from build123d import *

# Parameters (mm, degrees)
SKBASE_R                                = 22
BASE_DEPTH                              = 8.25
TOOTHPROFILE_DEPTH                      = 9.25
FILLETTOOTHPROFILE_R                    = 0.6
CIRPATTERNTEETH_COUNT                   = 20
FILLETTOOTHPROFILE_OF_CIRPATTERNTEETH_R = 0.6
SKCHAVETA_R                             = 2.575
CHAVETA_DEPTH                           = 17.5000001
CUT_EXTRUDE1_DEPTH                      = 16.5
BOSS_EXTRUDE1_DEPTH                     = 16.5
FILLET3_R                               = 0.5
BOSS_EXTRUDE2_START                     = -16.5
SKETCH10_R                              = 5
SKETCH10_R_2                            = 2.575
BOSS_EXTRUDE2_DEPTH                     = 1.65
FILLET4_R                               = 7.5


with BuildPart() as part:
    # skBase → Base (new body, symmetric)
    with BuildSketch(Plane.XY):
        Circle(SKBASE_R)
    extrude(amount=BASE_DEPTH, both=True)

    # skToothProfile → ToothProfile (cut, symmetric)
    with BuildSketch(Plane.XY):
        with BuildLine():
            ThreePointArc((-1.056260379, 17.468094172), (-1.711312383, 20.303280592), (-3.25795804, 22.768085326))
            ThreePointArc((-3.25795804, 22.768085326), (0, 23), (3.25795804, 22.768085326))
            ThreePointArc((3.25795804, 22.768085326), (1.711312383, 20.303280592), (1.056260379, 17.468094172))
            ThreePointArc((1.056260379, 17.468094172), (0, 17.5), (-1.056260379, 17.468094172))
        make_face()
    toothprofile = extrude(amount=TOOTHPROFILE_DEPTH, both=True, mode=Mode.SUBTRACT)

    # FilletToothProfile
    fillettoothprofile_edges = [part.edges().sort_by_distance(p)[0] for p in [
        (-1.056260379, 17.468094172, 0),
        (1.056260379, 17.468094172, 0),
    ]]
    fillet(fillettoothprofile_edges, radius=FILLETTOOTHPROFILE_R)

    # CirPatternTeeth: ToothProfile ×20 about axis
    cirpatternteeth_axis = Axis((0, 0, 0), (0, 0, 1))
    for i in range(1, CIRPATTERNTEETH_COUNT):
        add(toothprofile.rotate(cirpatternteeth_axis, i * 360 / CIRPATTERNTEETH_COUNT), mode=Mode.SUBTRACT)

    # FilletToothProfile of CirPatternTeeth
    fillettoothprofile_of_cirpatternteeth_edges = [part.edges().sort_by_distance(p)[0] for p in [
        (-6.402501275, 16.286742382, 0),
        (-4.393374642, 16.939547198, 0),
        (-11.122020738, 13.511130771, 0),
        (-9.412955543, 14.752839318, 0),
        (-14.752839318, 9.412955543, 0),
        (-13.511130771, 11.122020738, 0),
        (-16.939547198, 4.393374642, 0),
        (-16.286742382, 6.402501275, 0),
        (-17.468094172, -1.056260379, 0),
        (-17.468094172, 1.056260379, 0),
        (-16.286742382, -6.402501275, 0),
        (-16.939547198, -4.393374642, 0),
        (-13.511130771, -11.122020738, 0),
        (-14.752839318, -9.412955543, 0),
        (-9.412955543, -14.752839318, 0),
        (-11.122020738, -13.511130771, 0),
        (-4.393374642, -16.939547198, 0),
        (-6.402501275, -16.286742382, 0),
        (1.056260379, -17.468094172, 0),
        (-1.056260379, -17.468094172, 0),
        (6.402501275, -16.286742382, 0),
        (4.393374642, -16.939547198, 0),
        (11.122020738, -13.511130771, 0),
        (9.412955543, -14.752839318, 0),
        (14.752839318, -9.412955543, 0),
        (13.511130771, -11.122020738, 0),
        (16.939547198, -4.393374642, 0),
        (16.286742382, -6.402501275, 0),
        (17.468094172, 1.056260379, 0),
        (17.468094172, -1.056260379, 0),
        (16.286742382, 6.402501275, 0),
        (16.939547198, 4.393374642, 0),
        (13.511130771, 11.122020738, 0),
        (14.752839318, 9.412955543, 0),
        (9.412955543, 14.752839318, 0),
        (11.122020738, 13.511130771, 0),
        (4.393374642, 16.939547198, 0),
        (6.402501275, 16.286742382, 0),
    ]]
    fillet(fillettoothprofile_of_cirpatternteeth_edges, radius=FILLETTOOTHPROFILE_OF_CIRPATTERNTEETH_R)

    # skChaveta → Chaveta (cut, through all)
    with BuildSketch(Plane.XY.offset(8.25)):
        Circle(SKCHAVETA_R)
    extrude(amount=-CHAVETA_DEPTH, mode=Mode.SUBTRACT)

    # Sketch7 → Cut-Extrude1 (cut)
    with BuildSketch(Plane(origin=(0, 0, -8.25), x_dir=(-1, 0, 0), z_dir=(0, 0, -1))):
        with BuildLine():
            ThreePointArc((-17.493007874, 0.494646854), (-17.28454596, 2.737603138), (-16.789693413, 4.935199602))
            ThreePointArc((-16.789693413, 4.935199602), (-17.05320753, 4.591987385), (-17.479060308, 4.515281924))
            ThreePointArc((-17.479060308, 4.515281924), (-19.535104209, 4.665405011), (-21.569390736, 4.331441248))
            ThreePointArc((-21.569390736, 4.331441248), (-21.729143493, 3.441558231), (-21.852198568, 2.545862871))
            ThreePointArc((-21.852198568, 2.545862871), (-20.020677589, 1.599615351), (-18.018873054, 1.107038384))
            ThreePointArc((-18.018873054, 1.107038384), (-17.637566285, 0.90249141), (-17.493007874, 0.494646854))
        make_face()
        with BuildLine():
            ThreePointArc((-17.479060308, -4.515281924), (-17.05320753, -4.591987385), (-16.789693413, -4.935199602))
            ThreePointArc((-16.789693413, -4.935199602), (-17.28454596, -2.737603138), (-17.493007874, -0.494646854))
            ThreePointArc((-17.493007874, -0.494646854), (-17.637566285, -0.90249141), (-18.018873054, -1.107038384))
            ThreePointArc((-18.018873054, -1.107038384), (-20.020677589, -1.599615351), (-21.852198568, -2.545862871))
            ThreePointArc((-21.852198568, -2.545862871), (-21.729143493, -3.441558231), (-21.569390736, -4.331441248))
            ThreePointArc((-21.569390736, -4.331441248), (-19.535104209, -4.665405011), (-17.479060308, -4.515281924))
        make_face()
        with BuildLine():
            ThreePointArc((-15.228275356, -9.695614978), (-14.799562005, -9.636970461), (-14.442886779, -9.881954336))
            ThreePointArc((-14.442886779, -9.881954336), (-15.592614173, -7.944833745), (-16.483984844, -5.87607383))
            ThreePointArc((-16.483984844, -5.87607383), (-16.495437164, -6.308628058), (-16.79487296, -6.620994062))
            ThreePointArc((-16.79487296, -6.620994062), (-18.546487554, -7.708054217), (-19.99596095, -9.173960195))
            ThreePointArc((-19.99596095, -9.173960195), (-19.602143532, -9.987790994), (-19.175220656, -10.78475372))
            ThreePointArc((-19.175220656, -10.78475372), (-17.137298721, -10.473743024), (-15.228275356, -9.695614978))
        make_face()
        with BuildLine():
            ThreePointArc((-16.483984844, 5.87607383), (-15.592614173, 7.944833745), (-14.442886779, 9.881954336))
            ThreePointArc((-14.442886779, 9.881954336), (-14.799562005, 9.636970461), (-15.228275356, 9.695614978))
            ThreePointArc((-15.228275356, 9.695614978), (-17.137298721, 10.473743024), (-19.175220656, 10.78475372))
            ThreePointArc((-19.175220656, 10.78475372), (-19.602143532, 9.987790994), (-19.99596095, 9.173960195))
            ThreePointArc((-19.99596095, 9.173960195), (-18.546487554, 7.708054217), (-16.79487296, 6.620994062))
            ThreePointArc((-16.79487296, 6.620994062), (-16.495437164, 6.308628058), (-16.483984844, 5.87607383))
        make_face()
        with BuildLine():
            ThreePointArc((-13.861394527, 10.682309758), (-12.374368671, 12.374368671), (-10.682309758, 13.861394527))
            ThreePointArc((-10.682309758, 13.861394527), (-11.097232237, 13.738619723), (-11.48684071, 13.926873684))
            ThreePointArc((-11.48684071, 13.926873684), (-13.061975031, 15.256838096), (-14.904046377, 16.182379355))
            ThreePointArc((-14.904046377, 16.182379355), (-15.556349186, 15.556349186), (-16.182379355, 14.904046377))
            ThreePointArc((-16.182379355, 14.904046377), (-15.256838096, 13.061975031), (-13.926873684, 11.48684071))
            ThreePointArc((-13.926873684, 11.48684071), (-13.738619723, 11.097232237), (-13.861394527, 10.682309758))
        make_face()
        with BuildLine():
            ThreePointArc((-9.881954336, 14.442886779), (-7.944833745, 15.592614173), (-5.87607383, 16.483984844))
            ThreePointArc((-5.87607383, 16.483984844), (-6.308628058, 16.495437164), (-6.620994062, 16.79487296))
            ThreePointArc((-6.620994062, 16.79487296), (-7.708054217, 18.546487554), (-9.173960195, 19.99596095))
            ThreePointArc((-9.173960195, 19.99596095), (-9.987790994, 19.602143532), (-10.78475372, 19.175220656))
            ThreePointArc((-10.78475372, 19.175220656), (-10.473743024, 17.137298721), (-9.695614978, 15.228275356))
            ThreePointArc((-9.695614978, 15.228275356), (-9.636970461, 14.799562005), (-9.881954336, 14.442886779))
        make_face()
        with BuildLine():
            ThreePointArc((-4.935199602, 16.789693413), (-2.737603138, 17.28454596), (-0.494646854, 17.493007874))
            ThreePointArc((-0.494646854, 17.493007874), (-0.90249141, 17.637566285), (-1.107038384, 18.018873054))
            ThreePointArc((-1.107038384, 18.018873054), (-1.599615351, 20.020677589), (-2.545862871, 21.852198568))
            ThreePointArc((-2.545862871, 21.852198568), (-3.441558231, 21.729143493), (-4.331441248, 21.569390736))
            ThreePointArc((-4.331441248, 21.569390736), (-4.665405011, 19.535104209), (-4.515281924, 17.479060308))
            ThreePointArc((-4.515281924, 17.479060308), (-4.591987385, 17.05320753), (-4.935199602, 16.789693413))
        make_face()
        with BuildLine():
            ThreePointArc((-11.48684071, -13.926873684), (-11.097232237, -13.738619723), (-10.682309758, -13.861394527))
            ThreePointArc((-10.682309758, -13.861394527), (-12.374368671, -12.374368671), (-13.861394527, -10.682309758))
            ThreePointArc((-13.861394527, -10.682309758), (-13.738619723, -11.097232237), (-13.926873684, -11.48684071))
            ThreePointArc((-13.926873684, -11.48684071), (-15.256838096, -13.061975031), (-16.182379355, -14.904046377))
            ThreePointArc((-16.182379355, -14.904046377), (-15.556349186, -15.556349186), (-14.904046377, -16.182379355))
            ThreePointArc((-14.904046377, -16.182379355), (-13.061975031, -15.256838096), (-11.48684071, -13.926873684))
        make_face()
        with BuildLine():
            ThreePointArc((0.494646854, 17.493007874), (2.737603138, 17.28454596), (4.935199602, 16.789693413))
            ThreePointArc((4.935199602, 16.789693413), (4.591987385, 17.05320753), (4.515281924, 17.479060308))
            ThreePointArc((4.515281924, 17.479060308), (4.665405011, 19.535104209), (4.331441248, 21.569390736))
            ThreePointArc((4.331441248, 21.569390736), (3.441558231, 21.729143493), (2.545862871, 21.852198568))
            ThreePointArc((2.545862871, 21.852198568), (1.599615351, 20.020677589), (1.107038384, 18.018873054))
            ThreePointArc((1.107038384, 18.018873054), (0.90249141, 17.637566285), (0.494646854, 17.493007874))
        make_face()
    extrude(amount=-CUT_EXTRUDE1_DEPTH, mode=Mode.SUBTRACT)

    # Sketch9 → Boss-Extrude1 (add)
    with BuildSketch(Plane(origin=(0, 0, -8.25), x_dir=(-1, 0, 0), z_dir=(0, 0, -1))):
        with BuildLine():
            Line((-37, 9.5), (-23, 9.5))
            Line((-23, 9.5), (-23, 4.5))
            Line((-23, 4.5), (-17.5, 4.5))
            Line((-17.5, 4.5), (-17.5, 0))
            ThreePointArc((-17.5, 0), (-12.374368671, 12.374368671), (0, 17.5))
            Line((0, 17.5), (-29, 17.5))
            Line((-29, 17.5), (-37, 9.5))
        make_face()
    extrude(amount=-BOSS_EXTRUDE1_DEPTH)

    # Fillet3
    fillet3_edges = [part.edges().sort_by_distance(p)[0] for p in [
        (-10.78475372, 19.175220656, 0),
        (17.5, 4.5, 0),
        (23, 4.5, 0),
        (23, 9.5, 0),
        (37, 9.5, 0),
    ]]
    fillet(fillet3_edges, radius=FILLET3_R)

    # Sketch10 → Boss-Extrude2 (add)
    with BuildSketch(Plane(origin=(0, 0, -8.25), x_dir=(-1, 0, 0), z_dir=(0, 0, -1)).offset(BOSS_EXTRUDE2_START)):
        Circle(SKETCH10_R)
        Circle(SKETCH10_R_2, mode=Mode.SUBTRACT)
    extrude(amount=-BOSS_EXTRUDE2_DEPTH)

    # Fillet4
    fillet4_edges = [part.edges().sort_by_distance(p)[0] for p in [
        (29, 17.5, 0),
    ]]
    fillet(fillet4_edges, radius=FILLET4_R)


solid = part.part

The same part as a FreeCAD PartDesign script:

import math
import FreeCAD as App
import Part
import Sketcher
from FreeCAD import Vector
Q = App.Units.Quantity


def edges_at(feature, points):
    """Names of the edges that pass closest to the given points."""
    edges = feature.Shape.Edges
    near = lambda p: min(range(len(edges)), key=lambda i: edges[i].distToShape(Part.Vertex(*p))[0])
    return sorted({f"Edge{near(p) + 1}" for p in points})

doc = App.newDocument("Part")
body = doc.addObject("PartDesign::Body", "Body")

# Sketch on XY plane
sketch1 = body.newObject("Sketcher::SketchObject", "Sketch")
sketch1.AttachmentSupport = (doc.getObject("XY_Plane"), [""])
sketch1.MapMode = "FlatFace"
sketch1.addGeometry(Part.Circle(Vector(0, 0, 0), Vector(0, 0, 1), 22), False)
sketch1.addConstraint([
    Sketcher.Constraint("Coincident", 0, 3, -1, 1),
    Sketcher.Constraint("Diameter", 0, 44.0),
])
pad1 = body.newObject("PartDesign::Pad", "Pad")
pad1.Profile = sketch1
pad1.Length = 16.5
pad1.Midplane = True

# Sketch on XY plane
sketch2 = body.newObject("Sketcher::SketchObject", "Sketch001")
sketch2.AttachmentSupport = (doc.getObject("XY_Plane"), [""])
sketch2.MapMode = "FlatFace"
sketch2.addGeometry([
    Part.ArcOfCircle(Part.Circle(Vector(-9.81053, 16.938741, 0), Vector(0, 0, 1), 8.77026), math.radians(3.460347), math.radians(41.65715)),
    Part.ArcOfCircle(Part.Circle(Vector(0, 0, 0), Vector(0, 0, 1), 17.5), math.radians(86.539653), math.radians(93.460347)),
    Part.ArcOfCircle(Part.Circle(Vector(9.81053, 16.938741, 0), Vector(0, 0, 1), 8.77026), math.radians(138.34285), math.radians(176.539653)),
    Part.ArcOfCircle(Part.Circle(Vector(0, 0, 0), Vector(0, 0, 1), 23), math.radians(81.856644), math.radians(98.143356)),
], False)
sketch2.addConstraint([
    Sketcher.Constraint("Coincident", 0, 1, 1, 2),
    Sketcher.Constraint("Coincident", 1, 1, 2, 2),
    Sketcher.Constraint("Coincident", 2, 1, 3, 1),
    Sketcher.Constraint("Coincident", 3, 2, 0, 2),
    Sketcher.Constraint("Coincident", 1, 3, -1, 1),
    Sketcher.Constraint("Coincident", 3, 3, -1, 1),
    Sketcher.Constraint("Equal", 0, 2),
    Sketcher.Constraint("Symmetric", 0, 3, 2, 3, -2),
    Sketcher.Constraint("Radius", 3, 23.0),
    Sketcher.Constraint("Radius", 1, 17.5),
    Sketcher.Constraint("Radius", 0, 8.77026),
    Sketcher.Constraint("DistanceX", 0, 3, -1, 1, 9.81053),
    Sketcher.Constraint("DistanceY", -1, 1, 0, 3, 16.938741),
])
pocket1 = body.newObject("PartDesign::Pocket", "Pocket")
pocket1.Profile = sketch2
pocket1.Length = 18.5
pocket1.Midplane = True
doc.recompute()

fillet = body.newObject("PartDesign::Fillet", "Fillet")
fillet.Base = (pocket1, edges_at(pocket1, [(-1.056, 17.468, 0), (1.056, 17.468, 0)]))
fillet.Radius = 0.6
doc.recompute()

polarpattern = body.newObject("PartDesign::PolarPattern", "PolarPattern")
polarpattern.Originals = [pocket1]
polarpattern.Axis = (doc.getObject("Z_Axis"), [""])
polarpattern.Angle = 360
polarpattern.Occurrences = 20
body.Tip = polarpattern
doc.recompute()

fillet2 = body.newObject("PartDesign::Fillet", "Fillet001")
fillet2.Base = (polarpattern, edges_at(polarpattern, [
    (-6.403, 16.287, 0),
    (-4.393, 16.94, 0),
    (-11.122, 13.511, 0),
    (-9.413, 14.753, 0),
    (-14.753, 9.413, 0),
    (-13.511, 11.122, 0),
    (-16.94, 4.393, 0),
    (-16.287, 6.403, 0),
    (-17.468, -1.056, 0),
    (-17.468, 1.056, 0),
    (-16.287, -6.403, 0),
    (-16.94, -4.393, 0),
    (-13.511, -11.122, 0),
    (-14.753, -9.413, 0),
    (-9.413, -14.753, 0),
    (-11.122, -13.511, 0),
    (-4.393, -16.94, 0),
    (-6.403, -16.287, 0),
    (1.056, -17.468, 0),
    (-1.056, -17.468, 0),
    (6.403, -16.287, 0),
    (4.393, -16.94, 0),
    (11.122, -13.511, 0),
    (9.413, -14.753, 0),
    (14.753, -9.413, 0),
    (13.511, -11.122, 0),
    (16.94, -4.393, 0),
    (16.287, -6.403, 0),
    (17.468, 1.056, 0),
    (17.468, -1.056, 0),
    (16.287, 6.403, 0),
    (16.94, 4.393, 0),
    (13.511, 11.122, 0),
    (14.753, 9.413, 0),
    (9.413, 14.753, 0),
    (11.122, 13.511, 0),
    (4.393, 16.94, 0),
    (6.403, 16.287, 0),
]))
fillet2.Radius = 0.6

# Sketch on XY plane
sketch3 = body.newObject("Sketcher::SketchObject", "Sketch002")
sketch3.AttachmentSupport = (doc.getObject("XY_Plane"), [""])
sketch3.MapMode = "FlatFace"
sketch3.AttachmentOffset = App.Placement(Vector(0, 0, 8.25), App.Rotation())
sketch3.addGeometry(Part.Circle(Vector(0, 0, 0), Vector(0, 0, 1), 2.575), False)
sketch3.addConstraint([
    Sketcher.Constraint("Coincident", 0, 3, -1, 1),
    Sketcher.Constraint("Diameter", 0, 5.15),
])
pocket2 = body.newObject("PartDesign::Pocket", "Pocket001")
pocket2.Profile = sketch3
pocket2.Type = "ThroughAll"

# Sketch on XY plane
sketch4 = body.newObject("Sketcher::SketchObject", "Sketch003")
sketch4.AttachmentSupport = (doc.getObject("XY_Plane"), [""])
sketch4.MapMode = "FlatFace"
sketch4.AttachmentOffset = App.Placement(Vector(0, 0, -8.25), App.Rotation())
sketch4.addGeometry([
    Part.ArcOfCircle(Part.Circle(Vector(0, 0, 0), Vector(0, 0, 1), 17.5), math.radians(1.619712), math.radians(16.380288)),  # 0
    Part.ArcOfCircle(Part.Circle(Vector(17.36534, 5.104406, 0), Vector(0, 0, 1), 0.6), math.radians(-163.619712), math.radians(-79.074423)),  # 1
    Part.ArcOfCircle(Part.Circle(Vector(19.141321, -4.09601, 0), Vector(0, 0, 1), 8.77026), math.radians(73.927547), math.radians(100.925577)),  # 2
    Part.ArcOfCircle(Part.Circle(Vector(0, 0, 0), Vector(0, 0, 1), 22), math.radians(6.645215), math.radians(11.354785)),  # 3
    Part.ArcOfCircle(Part.Circle(Vector(16.938741, 9.81053, 0), Vector(0, 0, 1), 8.77026), math.radians(-82.925577), math.radians(-55.927547)),  # 4
    Part.ArcOfCircle(Part.Circle(Vector(18.092768, 0.511606, 0), Vector(0, 0, 1), 0.6), math.radians(97.074423), math.radians(181.619711)),  # 5
    Part.ArcOfCircle(Part.Circle(Vector(17.36534, -5.104406, 0), Vector(0, 0, 1), 0.6), math.radians(79.074423), math.radians(163.619712)),  # 6
    Part.ArcOfCircle(Part.Circle(Vector(0, 0, 0), Vector(0, 0, 1), 17.5), math.radians(-16.380288), math.radians(-1.619712)),  # 7
    Part.ArcOfCircle(Part.Circle(Vector(18.092768, -0.511606, 0), Vector(0, 0, 1), 0.6), math.radians(178.380289), math.radians(262.925577)),  # 8
    Part.ArcOfCircle(Part.Circle(Vector(16.938741, -9.81053, 0), Vector(0, 0, 1), 8.77026), math.radians(55.927547), math.radians(82.925577)),  # 9
    Part.ArcOfCircle(Part.Circle(Vector(0, 0, 0), Vector(0, 0, 1), 22), math.radians(-11.354785), math.radians(-6.645215)),  # 10
    Part.ArcOfCircle(Part.Circle(Vector(19.141321, 4.09601, 0), Vector(0, 0, 1), 8.77026), math.radians(-100.925577), math.radians(-73.927547)),  # 11
    Part.ArcOfCircle(Part.Circle(Vector(14.938071, -10.220764, 0), Vector(0, 0, 1), 0.6), math.radians(61.074423), math.radians(145.619711)),  # 12
    Part.ArcOfCircle(Part.Circle(Vector(0, 0, 0), Vector(0, 0, 1), 17.5), math.radians(-34.380288), math.radians(-19.619712)),  # 13
    Part.ArcOfCircle(Part.Circle(Vector(17.04915, -6.077539, 0), Vector(0, 0, 1), 0.6), math.radians(160.380289), math.radians(244.925577)),  # 14
    Part.ArcOfCircle(Part.Circle(Vector(13.07808, -14.564728, 0), Vector(0, 0, 1), 8.77026), math.radians(37.927547), math.radians(64.925577)),  # 15
    Part.ArcOfCircle(Part.Circle(Vector(0, 0, 0), Vector(0, 0, 1), 22), math.radians(-29.354785), math.radians(-24.645215)),  # 16
    Part.ArcOfCircle(Part.Circle(Vector(19.470215, -2.019456, 0), Vector(0, 0, 1), 8.77026), math.radians(-118.925577), math.radians(-91.927547)),  # 17
    Part.ArcOfCircle(Part.Circle(Vector(0, 0, 0), Vector(0, 0, 1), 17.5), math.radians(19.619712), math.radians(34.380288)),  # 18
    Part.ArcOfCircle(Part.Circle(Vector(14.938071, 10.220764, 0), Vector(0, 0, 1), 0.6), math.radians(-145.619711), math.radians(-61.074423)),  # 19
    Part.ArcOfCircle(Part.Circle(Vector(19.470215, 2.019456, 0), Vector(0, 0, 1), 8.77026), math.radians(91.927547), math.radians(118.925577)),  # 20
    Part.ArcOfCircle(Part.Circle(Vector(0, 0, 0), Vector(0, 0, 1), 22), math.radians(24.645215), math.radians(29.354785)),  # 21
    Part.ArcOfCircle(Part.Circle(Vector(13.07808, 14.564728, 0), Vector(0, 0, 1), 8.77026), math.radians(-64.925577), math.radians(-37.927547)),  # 22
    Part.ArcOfCircle(Part.Circle(Vector(17.04915, 6.077539, 0), Vector(0, 0, 1), 0.6), math.radians(115.074423), math.radians(199.619711)),  # 23
    Part.ArcOfCircle(Part.Circle(Vector(0, 0, 0), Vector(0, 0, 1), 17.5), math.radians(37.619712), math.radians(52.380288)),  # 24
    Part.ArcOfCircle(Part.Circle(Vector(11.04856, 14.336642, 0), Vector(0, 0, 1), 0.6), math.radians(-127.619711), math.radians(-43.074423)),  # 25
    Part.ArcOfCircle(Part.Circle(Vector(17.893228, 7.937244, 0), Vector(0, 0, 1), 8.77026), math.radians(109.927547), math.radians(136.925577)),  # 26
    Part.ArcOfCircle(Part.Circle(Vector(0, 0, 0), Vector(0, 0, 1), 22), math.radians(42.645215), math.radians(47.354785)),  # 27
    Part.ArcOfCircle(Part.Circle(Vector(7.937244, 17.893228, 0), Vector(0, 0, 1), 8.77026), math.radians(-46.925577), math.radians(-19.927547)),  # 28
    Part.ArcOfCircle(Part.Circle(Vector(14.336642, 11.04856, 0), Vector(0, 0, 1), 0.6), math.radians(133.074423), math.radians(217.619711)),  # 29
    Part.ArcOfCircle(Part.Circle(Vector(0, 0, 0), Vector(0, 0, 1), 17.5), math.radians(55.619712), math.radians(70.380288)),  # 30
    Part.ArcOfCircle(Part.Circle(Vector(6.077539, 17.04915, 0), Vector(0, 0, 1), 0.6), math.radians(-109.619711), math.radians(-25.074423)),  # 31
    Part.ArcOfCircle(Part.Circle(Vector(14.564728, 13.07808, 0), Vector(0, 0, 1), 8.77026), math.radians(127.927547), math.radians(154.925577)),  # 32
    Part.ArcOfCircle(Part.Circle(Vector(0, 0, 0), Vector(0, 0, 1), 22), math.radians(60.645215), math.radians(65.354785)),  # 33
    Part.ArcOfCircle(Part.Circle(Vector(2.019456, 19.470215, 0), Vector(0, 0, 1), 8.77026), math.radians(-28.925577), math.radians(-1.927547)),  # 34
    Part.ArcOfCircle(Part.Circle(Vector(10.220764, 14.938071, 0), Vector(0, 0, 1), 0.6), math.radians(151.074423), math.radians(235.619711)),  # 35
    Part.ArcOfCircle(Part.Circle(Vector(0, 0, 0), Vector(0, 0, 1), 17.5), math.radians(73.619712), math.radians(88.380288)),  # 36
    Part.ArcOfCircle(Part.Circle(Vector(0.511606, 18.092768, 0), Vector(0, 0, 1), 0.6), math.radians(-91.619711), math.radians(-7.074423)),  # 37
    Part.ArcOfCircle(Part.Circle(Vector(9.81053, 16.938741, 0), Vector(0, 0, 1), 8.77026), math.radians(145.927547), math.radians(172.925577)),  # 38
    Part.ArcOfCircle(Part.Circle(Vector(0, 0, 0), Vector(0, 0, 1), 22), math.radians(78.645215), math.radians(83.354785)),  # 39
    Part.ArcOfCircle(Part.Circle(Vector(-4.09601, 19.141321, 0), Vector(0, 0, 1), 8.77026), math.radians(-10.925577), math.radians(16.072453)),  # 40
    Part.ArcOfCircle(Part.Circle(Vector(5.104406, 17.36534, 0), Vector(0, 0, 1), 0.6), math.radians(169.074423), math.radians(253.619712)),  # 41
    Part.ArcOfCircle(Part.Circle(Vector(11.04856, -14.336642, 0), Vector(0, 0, 1), 0.6), math.radians(43.074423), math.radians(127.619711)),  # 42
    Part.ArcOfCircle(Part.Circle(Vector(0, 0, 0), Vector(0, 0, 1), 17.5), math.radians(-52.380288), math.radians(-37.619712)),  # 43
    Part.ArcOfCircle(Part.Circle(Vector(14.336642, -11.04856, 0), Vector(0, 0, 1), 0.6), math.radians(142.380289), math.radians(226.925577)),  # 44
    Part.ArcOfCircle(Part.Circle(Vector(7.937244, -17.893228, 0), Vector(0, 0, 1), 8.77026), math.radians(19.927547), math.radians(46.925577)),  # 45
    Part.ArcOfCircle(Part.Circle(Vector(0, 0, 0), Vector(0, 0, 1), 22), math.radians(-47.354785), math.radians(-42.645215)),  # 46
    Part.ArcOfCircle(Part.Circle(Vector(17.893228, -7.937244, 0), Vector(0, 0, 1), 8.77026), math.radians(-136.925577), math.radians(-109.927547)),  # 47
    Part.ArcOfCircle(Part.Circle(Vector(0, 0, 0), Vector(0, 0, 1), 17.5), math.radians(91.619712), math.radians(106.380288)),  # 48
    Part.ArcOfCircle(Part.Circle(Vector(-5.104406, 17.36534, 0), Vector(0, 0, 1), 0.6), math.radians(-73.619712), math.radians(10.925577)),  # 49
    Part.ArcOfCircle(Part.Circle(Vector(4.09601, 19.141321, 0), Vector(0, 0, 1), 8.77026), math.radians(163.927547), math.radians(190.925577)),  # 50
    Part.ArcOfCircle(Part.Circle(Vector(0, 0, 0), Vector(0, 0, 1), 22), math.radians(96.645215), math.radians(101.354785)),  # 51
    Part.ArcOfCircle(Part.Circle(Vector(-9.81053, 16.938741, 0), Vector(0, 0, 1), 8.77026), math.radians(7.074423), math.radians(34.072453)),  # 52
    Part.ArcOfCircle(Part.Circle(Vector(-0.511606, 18.092768, 0), Vector(0, 0, 1), 0.6), math.radians(-172.925577), math.radians(-88.380289)),  # 53
], False)
sketch4.addConstraint([
    Sketcher.Constraint("Tangent", 0, 2, 1, 1),
    Sketcher.Constraint("Tangent", 1, 2, 2, 2),
    Sketcher.Constraint("Coincident", 2, 1, 3, 2),
    Sketcher.Constraint("Coincident", 3, 1, 4, 2),
    Sketcher.Constraint("Tangent", 4, 1, 5, 1),
    Sketcher.Constraint("Tangent", 5, 2, 0, 1),
    Sketcher.Constraint("Tangent", 6, 2, 7, 1),
    Sketcher.Constraint("Tangent", 7, 2, 8, 1),
    Sketcher.Constraint("Tangent", 8, 2, 9, 2),
    Sketcher.Constraint("Coincident", 9, 1, 10, 2),
    Sketcher.Constraint("Coincident", 10, 1, 11, 2),
    Sketcher.Constraint("Tangent", 11, 1, 6, 1),
    Sketcher.Constraint("Tangent", 12, 2, 13, 1),
    Sketcher.Constraint("Tangent", 13, 2, 14, 1),
    Sketcher.Constraint("Tangent", 14, 2, 15, 2),
    Sketcher.Constraint("Coincident", 15, 1, 16, 2),
    Sketcher.Constraint("Coincident", 16, 1, 17, 2),
    Sketcher.Constraint("Tangent", 17, 1, 12, 1),
    Sketcher.Constraint("Tangent", 18, 2, 19, 1),
    Sketcher.Constraint("Tangent", 19, 2, 20, 2),
    Sketcher.Constraint("Coincident", 20, 1, 21, 2),
    Sketcher.Constraint("Coincident", 21, 1, 22, 2),
    Sketcher.Constraint("Tangent", 22, 1, 23, 1),
    Sketcher.Constraint("Tangent", 23, 2, 18, 1),
    Sketcher.Constraint("Tangent", 24, 2, 25, 1),
    Sketcher.Constraint("Tangent", 25, 2, 26, 2),
    Sketcher.Constraint("Coincident", 26, 1, 27, 2),
    Sketcher.Constraint("Coincident", 27, 1, 28, 2),
    Sketcher.Constraint("Tangent", 28, 1, 29, 1),
    Sketcher.Constraint("Tangent", 29, 2, 24, 1),
    Sketcher.Constraint("Tangent", 30, 2, 31, 1),
    Sketcher.Constraint("Tangent", 31, 2, 32, 2),
    Sketcher.Constraint("Coincident", 32, 1, 33, 2),
    Sketcher.Constraint("Coincident", 33, 1, 34, 2),
    Sketcher.Constraint("Tangent", 34, 1, 35, 1),
    Sketcher.Constraint("Tangent", 35, 2, 30, 1),
    Sketcher.Constraint("Tangent", 36, 2, 37, 1),
    Sketcher.Constraint("Tangent", 37, 2, 38, 2),
    Sketcher.Constraint("Coincident", 38, 1, 39, 2),
    Sketcher.Constraint("Coincident", 39, 1, 40, 2),
    Sketcher.Constraint("Tangent", 40, 1, 41, 1),
    Sketcher.Constraint("Tangent", 41, 2, 36, 1),
    Sketcher.Constraint("Tangent", 42, 2, 43, 1),
    Sketcher.Constraint("Tangent", 43, 2, 44, 1),
    Sketcher.Constraint("Tangent", 44, 2, 45, 2),
    Sketcher.Constraint("Coincident", 45, 1, 46, 2),
    Sketcher.Constraint("Coincident", 46, 1, 47, 2),
    Sketcher.Constraint("Tangent", 47, 1, 42, 1),
    Sketcher.Constraint("Tangent", 48, 2, 49, 1),
    Sketcher.Constraint("Tangent", 49, 2, 50, 2),
    Sketcher.Constraint("Coincident", 50, 1, 51, 2),
    Sketcher.Constraint("Coincident", 51, 1, 52, 2),
    Sketcher.Constraint("Tangent", 52, 1, 53, 1),
    Sketcher.Constraint("Tangent", 53, 2, 48, 1),
    Sketcher.Constraint("Coincident", 0, 3, -1, 1),
    Sketcher.Constraint("Coincident", 3, 3, -1, 1),
    Sketcher.Constraint("Coincident", 7, 3, -1, 1),
    Sketcher.Constraint("Coincident", 10, 3, -1, 1),
    Sketcher.Constraint("Coincident", 13, 3, -1, 1),
    Sketcher.Constraint("Coincident", 16, 3, -1, 1),
    Sketcher.Constraint("Coincident", 18, 3, -1, 1),
    Sketcher.Constraint("Coincident", 21, 3, -1, 1),
    Sketcher.Constraint("Coincident", 24, 3, -1, 1),
    Sketcher.Constraint("Coincident", 27, 3, -1, 1),
    Sketcher.Constraint("Coincident", 30, 3, -1, 1),
    Sketcher.Constraint("Coincident", 33, 3, -1, 1),
    Sketcher.Constraint("Coincident", 36, 3, -1, 1),
    Sketcher.Constraint("Coincident", 39, 3, -1, 1),
    Sketcher.Constraint("Coincident", 43, 3, -1, 1),
    Sketcher.Constraint("Coincident", 46, 3, -1, 1),
    Sketcher.Constraint("Coincident", 48, 3, -1, 1),
    Sketcher.Constraint("Coincident", 51, 3, -1, 1),
    Sketcher.Constraint("Equal", 2, 4),
    Sketcher.Constraint("Equal", 1, 5),
    Sketcher.Constraint("Equal", 5, 6),
    Sketcher.Constraint("Equal", 0, 7),
    Sketcher.Constraint("Equal", 6, 8),
    Sketcher.Constraint("Equal", 4, 9),
    Sketcher.Constraint("Equal", 3, 10),
    Sketcher.Constraint("Equal", 9, 11),
    Sketcher.Constraint("Equal", 8, 12),
    Sketcher.Constraint("Equal", 7, 13),
    Sketcher.Constraint("Equal", 12, 14),
    Sketcher.Constraint("Equal", 11, 15),
    Sketcher.Constraint("Equal", 10, 16),
    Sketcher.Constraint("Equal", 15, 17),
    Sketcher.Constraint("Equal", 13, 18),
    Sketcher.Constraint("Equal", 14, 19),
    Sketcher.Constraint("Equal", 17, 20),
    Sketcher.Constraint("Equal", 16, 21),
    Sketcher.Constraint("Equal", 20, 22),
    Sketcher.Constraint("Equal", 19, 23),
    Sketcher.Constraint("Equal", 18, 24),
    Sketcher.Constraint("Equal", 23, 25),
    Sketcher.Constraint("Equal", 22, 26),
    Sketcher.Constraint("Equal", 21, 27),
    Sketcher.Constraint("Equal", 26, 28),
    Sketcher.Constraint("Equal", 25, 29),
    Sketcher.Constraint("Equal", 24, 30),
    Sketcher.Constraint("Equal", 29, 31),
    Sketcher.Constraint("Equal", 28, 32),
    Sketcher.Constraint("Equal", 27, 33),
    Sketcher.Constraint("Equal", 32, 34),
    Sketcher.Constraint("Equal", 31, 35),
    Sketcher.Constraint("Equal", 30, 36),
    Sketcher.Constraint("Equal", 35, 37),
    Sketcher.Constraint("Equal", 34, 38),
    Sketcher.Constraint("Equal", 33, 39),
    Sketcher.Constraint("Equal", 38, 40),
    Sketcher.Constraint("Equal", 37, 41),
    Sketcher.Constraint("Equal", 41, 42),
    Sketcher.Constraint("Equal", 36, 43),
    Sketcher.Constraint("Equal", 42, 44),
    Sketcher.Constraint("Equal", 40, 45),
    Sketcher.Constraint("Equal", 39, 46),
    Sketcher.Constraint("Equal", 45, 47),
    Sketcher.Constraint("Equal", 43, 48),
    Sketcher.Constraint("Equal", 44, 49),
    Sketcher.Constraint("Equal", 47, 50),
    Sketcher.Constraint("Equal", 46, 51),
    Sketcher.Constraint("Equal", 50, 52),
    Sketcher.Constraint("Equal", 49, 53),
    Sketcher.Constraint("Symmetric", 40, 3, 50, 3, -2),
    Sketcher.Constraint("Symmetric", 38, 3, 52, 3, -2),
    Sketcher.Constraint("Symmetric", 4, 3, 9, 3, -1),
    Sketcher.Constraint("Symmetric", 2, 3, 11, 3, -1),
    Sketcher.Constraint("Symmetric", 17, 3, 20, 3, -1),
    Sketcher.Constraint("Symmetric", 15, 3, 22, 3, -1),
    Sketcher.Constraint("Symmetric", 28, 3, 45, 3, -1),
    Sketcher.Constraint("Symmetric", 26, 3, 47, 3, -1),
    Sketcher.Constraint("Radius", 3, 22.0),
    Sketcher.Constraint("Radius", 0, 17.5),
    Sketcher.Constraint("Radius", 1, 0.6),
    Sketcher.Constraint("Radius", 2, 8.77026),
    Sketcher.Constraint("DistanceY", -1, 1, 0, 2, 4.9352),
    Sketcher.Constraint("DistanceX", -1, 1, 3, 1, 21.852199),
    Sketcher.Constraint("DistanceY", -1, 1, 38, 1, 21.852199),
    Sketcher.Constraint("DistanceX", -1, 1, 41, 2, 4.9352),
    Sketcher.Constraint("DistanceX", -1, 1, 2, 3, 19.141321),
    Sketcher.Constraint("DistanceX", -1, 1, 4, 3, 16.938741),
    Sketcher.Constraint("DistanceX", -1, 1, 12, 3, 14.938071),
    Sketcher.Constraint("DistanceX", -1, 1, 14, 3, 17.04915),
    Sketcher.Constraint("DistanceX", -1, 1, 15, 3, 13.07808),
    Sketcher.Constraint("DistanceX", -1, 1, 25, 3, 11.04856),
    Sketcher.Constraint("DistanceX", -1, 1, 26, 3, 17.893228),
    Sketcher.Constraint("DistanceY", -1, 1, 28, 3, 17.893228),
    Sketcher.Constraint("DistanceY", -1, 1, 29, 3, 11.04856),
    Sketcher.Constraint("DistanceX", -1, 1, 31, 3, 6.077539),
    Sketcher.Constraint("DistanceY", -1, 1, 32, 3, 13.07808),
    Sketcher.Constraint("DistanceY", -1, 1, 35, 3, 14.938071),
    Sketcher.Constraint("DistanceY", -1, 1, 37, 3, 18.092768),
    Sketcher.Constraint("DistanceX", 40, 3, -1, 1, 4.09601),
    Sketcher.Constraint("DistanceX", -1, 1, 16, 1, 19.175221),
    Sketcher.Constraint("DistanceY", -1, 1, 33, 1, 19.175221),
])
pocket3 = body.newObject("PartDesign::Pocket", "Pocket002")
pocket3.Profile = sketch4
pocket3.Length = 16.5
pocket3.Reversed = True

# Sketch on XY plane
sketch5 = body.newObject("Sketcher::SketchObject", "Sketch004")
sketch5.AttachmentSupport = (doc.getObject("XY_Plane"), [""])
sketch5.MapMode = "FlatFace"
sketch5.AttachmentOffset = App.Placement(Vector(0, 0, -8.25), App.Rotation())
sketch5.addGeometry([
    Part.LineSegment(Vector(37, 9.5, 0), Vector(23, 9.5, 0)),  # 0
    Part.LineSegment(Vector(23, 9.5, 0), Vector(23, 4.5, 0)),  # 1
    Part.LineSegment(Vector(23, 4.5, 0), Vector(17.5, 4.5, 0)),  # 2
    Part.LineSegment(Vector(17.5, 4.5, 0), Vector(17.5, 0, 0)),  # 3
    Part.ArcOfCircle(Part.Circle(Vector(0, 0, 0), Vector(0, 0, 1), 17.5), math.radians(0), math.radians(90)),  # 4
    Part.LineSegment(Vector(0, 17.5, 0), Vector(29, 17.5, 0)),  # 5
    Part.LineSegment(Vector(29, 17.5, 0), Vector(37, 9.5, 0)),  # 6
], False)
sketch5.addConstraint([
    Sketcher.Constraint("Coincident", 0, 2, 1, 1),
    Sketcher.Constraint("Coincident", 1, 2, 2, 1),
    Sketcher.Constraint("Coincident", 2, 2, 3, 1),
    Sketcher.Constraint("Tangent", 3, 2, 4, 1),
    Sketcher.Constraint("Tangent", 4, 2, 5, 1),
    Sketcher.Constraint("Coincident", 5, 2, 6, 1),
    Sketcher.Constraint("Coincident", 6, 2, 0, 1),
    Sketcher.Constraint("Horizontal", 0),
    Sketcher.Constraint("Vertical", 1),
    Sketcher.Constraint("Horizontal", 2),
    Sketcher.Constraint("Vertical", 3),
    Sketcher.Constraint("Horizontal", 5),
    Sketcher.Constraint("Coincident", 4, 3, -1, 1),
    Sketcher.Constraint("Radius", 4, 17.5),
    Sketcher.Constraint("DistanceX", 0, 2, 0, 1, 14.0),
    Sketcher.Constraint("DistanceX", 5, 1, 5, 2, 29.0),
    Sketcher.Constraint("DistanceY", 1, 2, 1, 1, 5.0),
    Sketcher.Constraint("Angle", 6, Q("-45 deg")),
    Sketcher.Constraint("DistanceX", 2, 2, 2, 1, 5.5),
])
pad2 = body.newObject("PartDesign::Pad", "Pad001")
pad2.Profile = sketch5
pad2.Length = 16.5
doc.recompute()

fillet3 = body.newObject("PartDesign::Fillet", "Fillet002")
fillet3.Base = (pad2, edges_at(pad2, [
    (-10.785, 19.175, 0),
    (17.5, 4.5, 0),
    (23, 4.5, 0),
    (23, 9.5, 0),
    (37, 9.5, 0),
]))
fillet3.Radius = 0.5

# Sketch on XY plane
sketch6 = body.newObject("Sketcher::SketchObject", "Sketch005")
sketch6.AttachmentSupport = (doc.getObject("XY_Plane"), [""])
sketch6.MapMode = "FlatFace"
sketch6.AttachmentOffset = App.Placement(Vector(0, 0, 8.25), App.Rotation())
sketch6.addGeometry([
    Part.Circle(Vector(0, 0, 0), Vector(0, 0, 1), 5),
    Part.Circle(Vector(0, 0, 0), Vector(0, 0, 1), 2.575),
], False)
sketch6.addConstraint([
    Sketcher.Constraint("Coincident", 0, 3, -1, 1),
    Sketcher.Constraint("Coincident", 1, 3, -1, 1),
    Sketcher.Constraint("Diameter", 0, 10.0),
    Sketcher.Constraint("Diameter", 1, 5.15),
])
pad3 = body.newObject("PartDesign::Pad", "Pad002")
pad3.Profile = sketch6
pad3.Length = 1.65
doc.recompute()

fillet4 = body.newObject("PartDesign::Fillet", "Fillet003")
fillet4.Base = (pad3, edges_at(pad3, [(29, 17.5, 0)]))
fillet4.Radius = 7.5

doc.recompute()
